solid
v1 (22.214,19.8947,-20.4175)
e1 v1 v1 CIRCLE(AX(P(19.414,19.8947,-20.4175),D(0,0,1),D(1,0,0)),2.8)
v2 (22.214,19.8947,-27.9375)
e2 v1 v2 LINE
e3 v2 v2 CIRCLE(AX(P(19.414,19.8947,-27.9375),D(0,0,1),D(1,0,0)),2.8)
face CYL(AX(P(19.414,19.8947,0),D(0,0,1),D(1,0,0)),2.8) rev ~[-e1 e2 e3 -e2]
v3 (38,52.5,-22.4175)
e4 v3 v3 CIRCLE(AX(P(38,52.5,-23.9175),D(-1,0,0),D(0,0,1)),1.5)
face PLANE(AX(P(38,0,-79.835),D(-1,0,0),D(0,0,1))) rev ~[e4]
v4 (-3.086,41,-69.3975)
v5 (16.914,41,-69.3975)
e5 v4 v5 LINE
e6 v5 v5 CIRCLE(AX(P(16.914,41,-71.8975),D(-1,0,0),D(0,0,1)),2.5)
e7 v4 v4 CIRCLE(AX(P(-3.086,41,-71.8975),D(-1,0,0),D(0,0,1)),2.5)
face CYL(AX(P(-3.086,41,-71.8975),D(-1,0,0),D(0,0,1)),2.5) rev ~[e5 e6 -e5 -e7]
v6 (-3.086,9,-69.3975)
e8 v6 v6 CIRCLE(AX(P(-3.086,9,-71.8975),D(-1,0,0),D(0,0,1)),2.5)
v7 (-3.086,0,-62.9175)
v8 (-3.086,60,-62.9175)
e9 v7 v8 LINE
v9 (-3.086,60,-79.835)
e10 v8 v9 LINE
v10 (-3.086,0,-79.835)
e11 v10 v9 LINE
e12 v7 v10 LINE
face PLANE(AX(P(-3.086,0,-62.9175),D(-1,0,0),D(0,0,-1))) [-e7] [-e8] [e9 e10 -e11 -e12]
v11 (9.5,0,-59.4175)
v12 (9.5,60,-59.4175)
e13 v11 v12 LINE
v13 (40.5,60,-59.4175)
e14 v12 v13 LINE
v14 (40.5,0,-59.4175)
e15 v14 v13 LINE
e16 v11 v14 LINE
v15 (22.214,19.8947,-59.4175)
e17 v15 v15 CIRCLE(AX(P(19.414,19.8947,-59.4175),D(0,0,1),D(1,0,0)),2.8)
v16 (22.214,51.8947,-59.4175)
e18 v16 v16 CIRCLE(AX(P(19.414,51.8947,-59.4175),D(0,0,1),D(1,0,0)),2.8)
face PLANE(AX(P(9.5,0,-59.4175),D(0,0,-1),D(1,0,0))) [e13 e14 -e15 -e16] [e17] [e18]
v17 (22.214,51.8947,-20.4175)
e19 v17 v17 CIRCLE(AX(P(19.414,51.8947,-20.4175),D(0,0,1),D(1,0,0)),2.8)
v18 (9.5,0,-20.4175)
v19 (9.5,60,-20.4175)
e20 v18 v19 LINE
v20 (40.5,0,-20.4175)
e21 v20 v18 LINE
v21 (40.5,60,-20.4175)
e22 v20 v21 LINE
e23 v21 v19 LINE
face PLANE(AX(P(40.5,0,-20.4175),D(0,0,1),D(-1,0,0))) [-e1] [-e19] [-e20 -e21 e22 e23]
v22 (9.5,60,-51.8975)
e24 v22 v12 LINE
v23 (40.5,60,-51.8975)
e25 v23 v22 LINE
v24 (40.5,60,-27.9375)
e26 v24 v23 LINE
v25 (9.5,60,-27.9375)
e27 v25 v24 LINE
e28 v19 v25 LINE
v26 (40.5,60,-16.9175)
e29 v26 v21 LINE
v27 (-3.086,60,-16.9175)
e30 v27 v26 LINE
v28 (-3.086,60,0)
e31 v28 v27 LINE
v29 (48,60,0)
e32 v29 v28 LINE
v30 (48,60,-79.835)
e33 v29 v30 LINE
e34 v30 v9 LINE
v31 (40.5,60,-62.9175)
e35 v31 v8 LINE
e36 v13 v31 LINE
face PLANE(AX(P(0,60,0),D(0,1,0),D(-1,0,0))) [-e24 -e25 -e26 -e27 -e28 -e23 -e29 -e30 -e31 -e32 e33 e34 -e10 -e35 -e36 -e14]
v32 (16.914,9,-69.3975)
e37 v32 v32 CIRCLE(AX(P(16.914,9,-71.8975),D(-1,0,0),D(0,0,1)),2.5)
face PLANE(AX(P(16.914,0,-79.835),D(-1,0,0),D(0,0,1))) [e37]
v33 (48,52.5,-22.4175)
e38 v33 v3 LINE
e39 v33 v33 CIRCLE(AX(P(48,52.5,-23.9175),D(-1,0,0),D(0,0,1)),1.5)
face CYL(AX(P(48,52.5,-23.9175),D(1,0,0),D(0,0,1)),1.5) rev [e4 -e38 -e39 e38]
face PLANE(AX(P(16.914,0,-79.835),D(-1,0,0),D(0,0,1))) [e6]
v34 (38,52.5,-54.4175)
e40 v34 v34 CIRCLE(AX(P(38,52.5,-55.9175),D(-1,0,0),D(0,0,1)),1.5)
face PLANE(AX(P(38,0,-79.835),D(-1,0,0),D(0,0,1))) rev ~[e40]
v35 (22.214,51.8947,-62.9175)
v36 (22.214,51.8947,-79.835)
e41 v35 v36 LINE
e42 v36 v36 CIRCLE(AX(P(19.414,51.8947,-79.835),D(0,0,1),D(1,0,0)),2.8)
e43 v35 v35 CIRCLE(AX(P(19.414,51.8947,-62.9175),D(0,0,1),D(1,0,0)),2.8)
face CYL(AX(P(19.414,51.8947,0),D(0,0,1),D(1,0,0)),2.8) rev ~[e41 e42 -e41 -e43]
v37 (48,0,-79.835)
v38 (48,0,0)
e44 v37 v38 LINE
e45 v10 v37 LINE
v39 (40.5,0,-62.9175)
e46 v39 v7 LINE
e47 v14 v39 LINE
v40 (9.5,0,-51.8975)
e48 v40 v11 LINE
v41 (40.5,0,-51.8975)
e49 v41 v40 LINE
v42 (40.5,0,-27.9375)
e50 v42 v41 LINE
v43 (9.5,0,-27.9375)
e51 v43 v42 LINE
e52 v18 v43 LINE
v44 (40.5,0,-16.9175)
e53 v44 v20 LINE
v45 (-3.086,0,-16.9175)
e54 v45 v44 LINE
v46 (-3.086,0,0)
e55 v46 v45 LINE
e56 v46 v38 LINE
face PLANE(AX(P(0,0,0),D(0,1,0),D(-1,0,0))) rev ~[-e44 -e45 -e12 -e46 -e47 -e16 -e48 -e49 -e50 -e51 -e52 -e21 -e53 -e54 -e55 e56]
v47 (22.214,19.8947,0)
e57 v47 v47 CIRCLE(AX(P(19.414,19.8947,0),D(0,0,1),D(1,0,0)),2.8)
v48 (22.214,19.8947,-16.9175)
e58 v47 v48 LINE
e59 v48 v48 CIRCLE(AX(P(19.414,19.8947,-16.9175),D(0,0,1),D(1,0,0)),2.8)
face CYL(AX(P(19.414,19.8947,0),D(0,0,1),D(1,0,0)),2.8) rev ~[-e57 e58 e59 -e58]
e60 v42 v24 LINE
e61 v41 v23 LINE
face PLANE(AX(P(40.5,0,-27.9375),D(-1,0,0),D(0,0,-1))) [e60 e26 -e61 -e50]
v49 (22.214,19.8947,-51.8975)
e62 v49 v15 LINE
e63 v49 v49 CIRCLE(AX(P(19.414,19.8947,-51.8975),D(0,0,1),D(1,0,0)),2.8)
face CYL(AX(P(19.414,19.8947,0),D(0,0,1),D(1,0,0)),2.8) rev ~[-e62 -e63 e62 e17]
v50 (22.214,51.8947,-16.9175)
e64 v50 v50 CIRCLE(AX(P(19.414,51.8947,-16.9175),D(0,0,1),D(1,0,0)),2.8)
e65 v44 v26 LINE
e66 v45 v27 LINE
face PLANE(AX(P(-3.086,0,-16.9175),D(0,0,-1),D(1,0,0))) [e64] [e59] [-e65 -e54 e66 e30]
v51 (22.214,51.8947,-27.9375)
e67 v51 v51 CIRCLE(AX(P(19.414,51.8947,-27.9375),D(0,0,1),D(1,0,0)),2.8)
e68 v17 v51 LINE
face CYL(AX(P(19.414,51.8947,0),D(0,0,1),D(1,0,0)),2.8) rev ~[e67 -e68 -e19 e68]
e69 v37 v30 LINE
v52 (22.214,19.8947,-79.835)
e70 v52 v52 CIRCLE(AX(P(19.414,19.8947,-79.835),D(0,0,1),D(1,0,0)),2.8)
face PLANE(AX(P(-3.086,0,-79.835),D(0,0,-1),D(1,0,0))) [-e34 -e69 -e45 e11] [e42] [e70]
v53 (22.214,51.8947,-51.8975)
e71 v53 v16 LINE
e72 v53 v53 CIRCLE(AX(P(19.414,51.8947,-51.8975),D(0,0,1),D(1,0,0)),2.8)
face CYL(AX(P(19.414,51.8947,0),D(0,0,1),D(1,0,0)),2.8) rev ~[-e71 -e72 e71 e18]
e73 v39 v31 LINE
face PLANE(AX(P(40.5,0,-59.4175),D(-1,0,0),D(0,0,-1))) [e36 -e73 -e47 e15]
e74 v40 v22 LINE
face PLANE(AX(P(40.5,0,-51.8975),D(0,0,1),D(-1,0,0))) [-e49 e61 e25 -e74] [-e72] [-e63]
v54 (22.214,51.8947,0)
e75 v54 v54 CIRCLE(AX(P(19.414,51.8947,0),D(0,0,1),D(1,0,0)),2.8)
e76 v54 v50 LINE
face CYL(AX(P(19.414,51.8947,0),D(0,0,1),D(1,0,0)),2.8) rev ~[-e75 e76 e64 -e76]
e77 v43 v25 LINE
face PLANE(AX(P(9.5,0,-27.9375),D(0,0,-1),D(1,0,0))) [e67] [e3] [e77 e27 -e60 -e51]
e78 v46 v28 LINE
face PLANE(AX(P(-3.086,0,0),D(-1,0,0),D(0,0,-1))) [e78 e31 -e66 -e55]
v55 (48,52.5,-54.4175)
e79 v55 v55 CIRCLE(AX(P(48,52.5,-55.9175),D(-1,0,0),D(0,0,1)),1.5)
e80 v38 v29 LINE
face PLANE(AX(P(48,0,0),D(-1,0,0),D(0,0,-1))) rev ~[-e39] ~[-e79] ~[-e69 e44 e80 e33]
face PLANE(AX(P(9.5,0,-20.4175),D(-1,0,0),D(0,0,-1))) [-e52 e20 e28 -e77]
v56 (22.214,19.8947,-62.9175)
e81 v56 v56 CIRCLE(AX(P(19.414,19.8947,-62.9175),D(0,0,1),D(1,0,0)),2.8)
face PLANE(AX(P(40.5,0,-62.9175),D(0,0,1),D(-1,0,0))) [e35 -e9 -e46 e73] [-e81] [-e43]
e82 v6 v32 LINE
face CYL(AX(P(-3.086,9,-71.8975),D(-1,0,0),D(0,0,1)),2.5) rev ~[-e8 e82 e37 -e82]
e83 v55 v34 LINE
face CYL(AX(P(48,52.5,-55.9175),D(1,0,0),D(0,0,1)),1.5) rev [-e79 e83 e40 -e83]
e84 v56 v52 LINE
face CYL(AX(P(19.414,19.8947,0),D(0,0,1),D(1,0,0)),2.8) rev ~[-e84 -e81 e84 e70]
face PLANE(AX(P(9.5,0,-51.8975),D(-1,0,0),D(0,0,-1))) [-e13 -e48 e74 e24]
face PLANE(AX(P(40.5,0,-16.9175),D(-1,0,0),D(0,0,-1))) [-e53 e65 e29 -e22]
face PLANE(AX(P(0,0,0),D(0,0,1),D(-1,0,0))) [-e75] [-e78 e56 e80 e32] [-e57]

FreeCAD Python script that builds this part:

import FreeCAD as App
import Part
import Sketcher


def add_polygon(sketch, points):
    """Adds a closed chain of lines whose ends are joined by coincident constraints."""
    first, n = sketch.GeometryCount, len(points)
    for a, b in zip(points, points[1:] + points[:1]):
        sketch.addGeometry(Part.LineSegment(App.Vector(*a, 0), App.Vector(*b, 0)), False)
    for i in range(n):
        sketch.addConstraint(Sketcher.Constraint("Coincident", first + i, 2, first + (i + 1) % n, 1))

doc = App.newDocument("Part")
body = doc.addObject("PartDesign::Body", "Body")

# Sketch on XZ plane
sketch1 = body.newObject("Sketcher::SketchObject", "Sketch")
sketch1.AttachmentSupport = (doc.getObject("XZ_Plane"), [""])
sketch1.MapMode = "FlatFace"
add_polygon(sketch1, [(-3.1, 0), (48, 0), (48, -79.8), (-3.1, -79.8), (-3.1, -62.9), (40.5, -62.9), (40.5, -59.4), (9.5, -59.4), (9.5, -51.9), (40.5, -51.9), (40.5, -27.9), (9.5, -27.9), (9.5, -20.4), (40.5, -20.4), (40.5, -16.9), (-3.1, -16.9)])  # lines 0-15
sketch1.addConstraint([
    Sketcher.Constraint("Horizontal", 0),
    Sketcher.Constraint("Vertical", 1),
    Sketcher.Constraint("Horizontal", 2),
    Sketcher.Constraint("Vertical", 3),
    Sketcher.Constraint("Horizontal", 4),
    Sketcher.Constraint("Vertical", 5),
    Sketcher.Constraint("Horizontal", 6),
    Sketcher.Constraint("Vertical", 7),
    Sketcher.Constraint("Horizontal", 8),
    Sketcher.Constraint("Vertical", 9),
    Sketcher.Constraint("Horizontal", 10),
    Sketcher.Constraint("Vertical", 11),
    Sketcher.Constraint("Horizontal", 12),
    Sketcher.Constraint("Vertical", 13),
    Sketcher.Constraint("Horizontal", 14),
    Sketcher.Constraint("Vertical", 15),
    Sketcher.Constraint("PointOnObject", 0, 2, -1),
    Sketcher.Constraint("Vertical", 5, 2, 8, 2),
    Sketcher.Constraint("Vertical", 7, 2, 10, 2),
    Sketcher.Constraint("Vertical", 9, 2, 12, 2),
    Sketcher.Constraint("Vertical", 3, 2, 14, 2),
    Sketcher.Constraint("Equal", 7, 11),
    Sketcher.Constraint("Equal", 5, 13),
    Sketcher.Constraint("Equal", 3, 15),
    Sketcher.Constraint("DistanceY", 6, 2, 11, 2, 39.0),
    Sketcher.Constraint("DistanceY", 7, 1, 7, 2, 7.52),
    Sketcher.Constraint("DistanceX", 0, 1, 0, 2, 51.086),
    Sketcher.Constraint("DistanceX", 6, 2, 6, 1, 31.0),
    Sketcher.Constraint("DistanceY", 1, 2, 1, 1, 79.835),
    Sketcher.Constraint("DistanceY", 5, 1, 5, 2, 3.5),
    Sketcher.Constraint("DistanceX", -1, 1, 0, 2, 48.0),
    Sketcher.Constraint("DistanceX", -1, 1, 4, 2, 40.5),
])
pad1 = body.newObject("PartDesign::Pad", "Pad")
pad1.Profile = sketch1
pad1.Length = 60
pad1.Reversed = True

# Sketch on XY plane
sketch2 = body.newObject("Sketcher::SketchObject", "Sketch001")
sketch2.AttachmentSupport = (doc.getObject("XY_Plane"), [""])
sketch2.MapMode = "FlatFace"
sketch2.addGeometry([
    Part.Circle(App.Vector(19.4, 51.9, 0), App.Vector(0, 0, 1), 2.8),
    Part.Circle(App.Vector(19.4, 19.9, 0), App.Vector(0, 0, 1), 2.8),
], False)
sketch2.addConstraint([
    Sketcher.Constraint("Equal", 0, 1),
    Sketcher.Constraint("Vertical", 0, 3, 1, 3),
    Sketcher.Constraint("DistanceY", 1, 3, 0, 3, 32.0),
    Sketcher.Constraint("Diameter", 0, 5.6),
    Sketcher.Constraint("DistanceX", -1, 1, 0, 3, 19.414),
    Sketcher.Constraint("DistanceY", -1, 1, 0, 3, 51.8947),
])
pocket1 = body.newObject("PartDesign::Pocket", "Pocket")
pocket1.Profile = sketch2
pocket1.Type = "ThroughAll"

# Sketch on YZ plane
sketch3 = body.newObject("Sketcher::SketchObject", "Sketch002")
sketch3.AttachmentSupport = (doc.getObject("YZ_Plane"), [""])
sketch3.MapMode = "FlatFace"
sketch3.AttachmentOffset = App.Placement(App.Vector(0, 0, -3.086), App.Rotation())
sketch3.addGeometry([
    Part.Circle(App.Vector(41, -71.9, 0), App.Vector(0, 0, 1), 2.5),
    Part.Circle(App.Vector(9, -71.9, 0), App.Vector(0, 0, 1), 2.5),
], False)
sketch3.addConstraint([
    Sketcher.Constraint("Equal", 0, 1),
    Sketcher.Constraint("Horizontal", 0, 3, 1, 3),
    Sketcher.Constraint("Diameter", 0, 5.0),
    Sketcher.Constraint("DistanceX", -1, 1, 1, 3, 9.0),
    Sketcher.Constraint("DistanceX", 1, 3, 0, 3, 32.0),
    Sketcher.Constraint("DistanceY", 0, 3, -1, 1, 71.8975),
])
pocket2 = body.newObject("PartDesign::Pocket", "Pocket001")
pocket2.Profile = sketch3
pocket2.Length = 20
pocket2.Reversed = True

# Sketch on YZ plane
sketch4 = body.newObject("Sketcher::SketchObject", "Sketch003")
sketch4.AttachmentSupport = (doc.getObject("YZ_Plane"), [""])
sketch4.MapMode = "FlatFace"
sketch4.AttachmentOffset = App.Placement(App.Vector(0, 0, 48), App.Rotation())
sketch4.addGeometry([
    Part.Circle(App.Vector(52.5, -23.9, 0), App.Vector(0, 0, 1), 1.5),
    Part.Circle(App.Vector(52.5, -55.9, 0), App.Vector(0, 0, 1), 1.5),
], False)
sketch4.addConstraint([
    Sketcher.Constraint("Equal", 0, 1),
    Sketcher.Constraint("Vertical", 0, 3, 1, 3),
    Sketcher.Constraint("Diameter", 0, 3.0),
    Sketcher.Constraint("DistanceY", 1, 3, 0, 3, 32.0),
    Sketcher.Constraint("DistanceX", -1, 1, 0, 3, 52.5),
    Sketcher.Constraint("DistanceY", 0, 3, -1, 1, 23.9175),
])
pocket3 = body.newObject("PartDesign::Pocket", "Pocket002")
pocket3.Profile = sketch4
pocket3.Length = 10

doc.recompute()
